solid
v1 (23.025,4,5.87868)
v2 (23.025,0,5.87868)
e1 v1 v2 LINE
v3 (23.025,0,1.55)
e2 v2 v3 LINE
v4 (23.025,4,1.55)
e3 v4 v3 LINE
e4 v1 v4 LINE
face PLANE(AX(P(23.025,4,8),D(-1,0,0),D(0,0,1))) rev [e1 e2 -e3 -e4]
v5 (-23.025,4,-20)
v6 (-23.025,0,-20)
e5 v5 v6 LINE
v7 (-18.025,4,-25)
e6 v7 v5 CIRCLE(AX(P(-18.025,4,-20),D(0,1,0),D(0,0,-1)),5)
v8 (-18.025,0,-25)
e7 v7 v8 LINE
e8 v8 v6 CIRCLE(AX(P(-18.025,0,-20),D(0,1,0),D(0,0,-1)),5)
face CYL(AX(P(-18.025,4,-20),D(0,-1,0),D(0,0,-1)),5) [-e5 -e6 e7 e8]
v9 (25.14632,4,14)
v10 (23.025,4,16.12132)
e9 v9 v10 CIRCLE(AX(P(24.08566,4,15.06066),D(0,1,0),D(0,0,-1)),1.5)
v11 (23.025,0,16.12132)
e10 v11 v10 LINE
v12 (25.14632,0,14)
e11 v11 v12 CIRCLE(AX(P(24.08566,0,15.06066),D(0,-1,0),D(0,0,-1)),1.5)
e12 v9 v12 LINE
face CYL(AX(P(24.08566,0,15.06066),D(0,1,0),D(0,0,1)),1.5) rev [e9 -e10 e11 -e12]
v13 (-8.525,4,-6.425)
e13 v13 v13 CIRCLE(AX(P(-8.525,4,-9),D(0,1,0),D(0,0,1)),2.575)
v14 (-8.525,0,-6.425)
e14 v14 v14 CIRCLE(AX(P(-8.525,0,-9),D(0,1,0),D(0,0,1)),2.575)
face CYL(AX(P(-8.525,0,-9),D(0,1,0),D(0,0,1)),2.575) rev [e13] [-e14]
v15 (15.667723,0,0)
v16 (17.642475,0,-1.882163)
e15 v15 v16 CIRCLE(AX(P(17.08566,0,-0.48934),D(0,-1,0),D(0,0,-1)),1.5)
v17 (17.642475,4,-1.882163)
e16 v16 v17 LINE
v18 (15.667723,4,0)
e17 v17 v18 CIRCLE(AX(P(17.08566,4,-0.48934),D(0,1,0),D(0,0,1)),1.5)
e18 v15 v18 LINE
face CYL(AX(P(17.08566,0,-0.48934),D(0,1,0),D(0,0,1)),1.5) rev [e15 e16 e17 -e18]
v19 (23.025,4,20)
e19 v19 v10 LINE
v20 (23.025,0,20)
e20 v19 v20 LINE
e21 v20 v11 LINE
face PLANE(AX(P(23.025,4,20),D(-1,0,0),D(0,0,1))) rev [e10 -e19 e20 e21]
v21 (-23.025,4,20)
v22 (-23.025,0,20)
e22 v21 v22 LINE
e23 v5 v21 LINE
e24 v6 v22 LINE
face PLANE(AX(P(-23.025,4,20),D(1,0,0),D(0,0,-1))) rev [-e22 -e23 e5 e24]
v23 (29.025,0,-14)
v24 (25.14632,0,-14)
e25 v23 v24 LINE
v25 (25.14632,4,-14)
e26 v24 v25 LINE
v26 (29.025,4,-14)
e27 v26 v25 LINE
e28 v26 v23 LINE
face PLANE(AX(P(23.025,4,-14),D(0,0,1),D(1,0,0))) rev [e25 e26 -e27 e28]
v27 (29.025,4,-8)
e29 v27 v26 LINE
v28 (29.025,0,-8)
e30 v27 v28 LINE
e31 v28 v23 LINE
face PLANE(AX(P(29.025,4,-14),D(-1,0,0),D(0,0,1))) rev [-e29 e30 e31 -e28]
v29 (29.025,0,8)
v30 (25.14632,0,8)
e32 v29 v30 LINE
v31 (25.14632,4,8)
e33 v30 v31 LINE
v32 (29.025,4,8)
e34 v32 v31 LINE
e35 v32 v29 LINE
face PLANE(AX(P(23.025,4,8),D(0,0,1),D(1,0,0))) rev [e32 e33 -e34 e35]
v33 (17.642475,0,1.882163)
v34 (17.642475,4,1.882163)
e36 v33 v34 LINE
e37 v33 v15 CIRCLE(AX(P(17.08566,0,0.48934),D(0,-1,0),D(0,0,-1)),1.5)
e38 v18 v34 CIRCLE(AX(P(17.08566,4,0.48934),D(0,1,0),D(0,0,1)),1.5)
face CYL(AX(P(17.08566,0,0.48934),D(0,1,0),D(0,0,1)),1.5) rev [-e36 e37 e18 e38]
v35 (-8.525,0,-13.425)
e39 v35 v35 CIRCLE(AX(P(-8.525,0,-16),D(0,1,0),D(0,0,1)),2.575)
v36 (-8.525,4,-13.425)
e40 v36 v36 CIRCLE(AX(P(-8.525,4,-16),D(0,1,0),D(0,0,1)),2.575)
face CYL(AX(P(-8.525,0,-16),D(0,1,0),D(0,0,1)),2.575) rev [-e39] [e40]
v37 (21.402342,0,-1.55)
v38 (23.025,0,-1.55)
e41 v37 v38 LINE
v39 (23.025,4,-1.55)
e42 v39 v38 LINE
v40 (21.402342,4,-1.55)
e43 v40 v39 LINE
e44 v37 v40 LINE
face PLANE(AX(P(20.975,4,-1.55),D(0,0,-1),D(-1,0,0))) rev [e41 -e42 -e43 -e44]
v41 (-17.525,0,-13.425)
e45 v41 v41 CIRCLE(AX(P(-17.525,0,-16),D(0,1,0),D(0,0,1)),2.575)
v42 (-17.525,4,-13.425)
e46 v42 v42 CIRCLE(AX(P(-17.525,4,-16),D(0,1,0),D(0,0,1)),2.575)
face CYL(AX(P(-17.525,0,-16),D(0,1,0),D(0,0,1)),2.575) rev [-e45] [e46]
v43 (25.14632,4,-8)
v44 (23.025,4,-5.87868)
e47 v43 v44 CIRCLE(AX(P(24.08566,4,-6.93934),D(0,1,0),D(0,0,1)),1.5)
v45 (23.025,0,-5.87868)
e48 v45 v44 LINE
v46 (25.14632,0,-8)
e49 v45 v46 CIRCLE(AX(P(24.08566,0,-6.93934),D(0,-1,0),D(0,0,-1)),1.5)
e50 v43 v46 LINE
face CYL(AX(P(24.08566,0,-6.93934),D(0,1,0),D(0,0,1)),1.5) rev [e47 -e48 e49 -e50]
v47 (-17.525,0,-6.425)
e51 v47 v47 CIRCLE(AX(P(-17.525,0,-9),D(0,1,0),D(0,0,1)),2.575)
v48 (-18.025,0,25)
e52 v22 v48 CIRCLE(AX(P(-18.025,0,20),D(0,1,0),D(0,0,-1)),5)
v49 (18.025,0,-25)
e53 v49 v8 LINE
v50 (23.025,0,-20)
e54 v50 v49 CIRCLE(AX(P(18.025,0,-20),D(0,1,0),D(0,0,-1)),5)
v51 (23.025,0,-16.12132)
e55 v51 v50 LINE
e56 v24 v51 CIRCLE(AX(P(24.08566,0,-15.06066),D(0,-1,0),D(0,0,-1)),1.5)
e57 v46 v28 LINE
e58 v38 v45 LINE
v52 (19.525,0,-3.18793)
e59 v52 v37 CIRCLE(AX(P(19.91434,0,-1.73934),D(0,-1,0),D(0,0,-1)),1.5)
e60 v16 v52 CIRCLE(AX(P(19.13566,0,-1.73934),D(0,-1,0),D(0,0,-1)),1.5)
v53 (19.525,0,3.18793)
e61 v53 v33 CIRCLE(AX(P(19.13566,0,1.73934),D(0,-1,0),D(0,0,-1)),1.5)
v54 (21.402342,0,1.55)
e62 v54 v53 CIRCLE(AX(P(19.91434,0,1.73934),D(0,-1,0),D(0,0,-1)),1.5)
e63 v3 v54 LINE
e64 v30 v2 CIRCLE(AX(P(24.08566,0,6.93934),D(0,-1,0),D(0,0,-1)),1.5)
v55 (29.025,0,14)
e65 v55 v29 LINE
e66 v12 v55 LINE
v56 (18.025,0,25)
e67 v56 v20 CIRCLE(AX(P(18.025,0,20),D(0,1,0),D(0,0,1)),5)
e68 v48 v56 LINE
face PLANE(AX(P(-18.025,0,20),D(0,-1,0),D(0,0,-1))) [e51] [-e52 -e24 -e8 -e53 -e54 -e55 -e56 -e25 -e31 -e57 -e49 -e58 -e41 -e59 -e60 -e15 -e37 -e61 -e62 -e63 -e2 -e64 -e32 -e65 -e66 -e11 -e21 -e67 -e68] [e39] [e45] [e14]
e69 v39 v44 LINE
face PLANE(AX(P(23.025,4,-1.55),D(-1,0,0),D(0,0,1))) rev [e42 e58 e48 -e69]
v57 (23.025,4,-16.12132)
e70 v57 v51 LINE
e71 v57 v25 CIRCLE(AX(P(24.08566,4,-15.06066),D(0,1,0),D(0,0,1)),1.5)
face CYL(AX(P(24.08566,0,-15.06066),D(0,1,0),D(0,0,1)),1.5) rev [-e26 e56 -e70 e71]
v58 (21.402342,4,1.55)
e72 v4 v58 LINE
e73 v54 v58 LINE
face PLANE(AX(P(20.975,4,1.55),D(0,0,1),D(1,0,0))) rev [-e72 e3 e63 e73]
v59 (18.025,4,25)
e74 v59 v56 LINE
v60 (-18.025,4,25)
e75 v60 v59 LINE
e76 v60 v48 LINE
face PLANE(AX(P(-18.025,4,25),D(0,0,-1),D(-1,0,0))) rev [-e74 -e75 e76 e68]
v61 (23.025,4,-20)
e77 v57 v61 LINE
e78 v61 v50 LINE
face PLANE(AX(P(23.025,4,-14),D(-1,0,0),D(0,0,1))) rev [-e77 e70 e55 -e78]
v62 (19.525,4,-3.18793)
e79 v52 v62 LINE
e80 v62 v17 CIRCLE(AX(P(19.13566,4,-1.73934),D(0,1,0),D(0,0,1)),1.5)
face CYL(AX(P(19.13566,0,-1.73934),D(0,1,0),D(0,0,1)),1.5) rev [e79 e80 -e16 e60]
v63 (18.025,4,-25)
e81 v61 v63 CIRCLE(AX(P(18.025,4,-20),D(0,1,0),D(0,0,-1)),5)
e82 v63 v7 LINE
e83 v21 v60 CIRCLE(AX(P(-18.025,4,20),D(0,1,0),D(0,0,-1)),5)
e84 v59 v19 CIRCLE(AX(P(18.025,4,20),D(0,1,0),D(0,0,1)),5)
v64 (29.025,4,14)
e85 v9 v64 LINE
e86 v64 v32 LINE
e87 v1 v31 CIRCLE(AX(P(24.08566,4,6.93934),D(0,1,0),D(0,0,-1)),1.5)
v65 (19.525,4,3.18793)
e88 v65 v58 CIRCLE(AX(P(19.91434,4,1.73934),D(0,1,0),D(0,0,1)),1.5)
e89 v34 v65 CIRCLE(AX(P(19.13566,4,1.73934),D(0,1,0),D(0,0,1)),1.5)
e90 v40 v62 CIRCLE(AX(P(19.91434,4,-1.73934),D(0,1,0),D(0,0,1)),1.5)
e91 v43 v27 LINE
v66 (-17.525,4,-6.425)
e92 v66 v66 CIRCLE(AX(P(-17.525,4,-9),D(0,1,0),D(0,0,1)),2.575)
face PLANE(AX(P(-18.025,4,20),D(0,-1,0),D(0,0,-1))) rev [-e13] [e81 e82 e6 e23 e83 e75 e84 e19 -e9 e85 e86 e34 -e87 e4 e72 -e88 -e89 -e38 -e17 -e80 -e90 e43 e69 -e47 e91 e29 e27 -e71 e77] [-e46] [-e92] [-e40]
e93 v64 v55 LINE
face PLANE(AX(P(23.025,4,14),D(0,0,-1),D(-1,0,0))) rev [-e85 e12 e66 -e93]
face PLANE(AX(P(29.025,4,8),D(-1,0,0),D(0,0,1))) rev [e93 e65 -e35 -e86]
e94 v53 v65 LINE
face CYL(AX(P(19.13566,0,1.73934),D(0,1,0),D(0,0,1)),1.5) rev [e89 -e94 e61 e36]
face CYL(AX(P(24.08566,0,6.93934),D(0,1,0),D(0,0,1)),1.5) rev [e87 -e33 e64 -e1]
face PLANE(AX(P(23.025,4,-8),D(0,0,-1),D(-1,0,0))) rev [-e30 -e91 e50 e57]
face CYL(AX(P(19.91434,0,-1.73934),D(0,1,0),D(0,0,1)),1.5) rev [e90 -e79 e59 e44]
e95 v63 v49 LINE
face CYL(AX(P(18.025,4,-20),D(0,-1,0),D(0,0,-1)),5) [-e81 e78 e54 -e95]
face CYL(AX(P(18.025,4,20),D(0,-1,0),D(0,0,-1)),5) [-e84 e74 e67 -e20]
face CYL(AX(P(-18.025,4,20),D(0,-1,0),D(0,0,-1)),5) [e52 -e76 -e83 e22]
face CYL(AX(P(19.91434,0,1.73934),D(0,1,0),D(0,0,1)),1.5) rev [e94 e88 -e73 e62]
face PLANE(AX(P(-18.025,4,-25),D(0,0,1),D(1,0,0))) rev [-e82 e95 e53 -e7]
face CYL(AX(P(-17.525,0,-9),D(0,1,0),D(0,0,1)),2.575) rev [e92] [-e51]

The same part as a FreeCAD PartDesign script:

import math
import FreeCAD as App
import Part
import Sketcher
from FreeCAD import Vector

doc = App.newDocument("Part")
body = doc.addObject("PartDesign::Body", "Body")

# Sketch on XZ plane
sketch1 = body.newObject("Sketcher::SketchObject", "Sketch")
sketch1.AttachmentSupport = (doc.getObject("XZ_Plane"), [""])
sketch1.MapMode = "FlatFace"
sketch1.addGeometry(Part.LineSegment(Vector(-18.025, 25, 0), Vector(18.025, 25, 0)), False)
sketch1.addGeometry(Part.ArcOfCircle(Part.Circle(Vector(18.025, 20, 0), Vector(0, 0, 1), 5), math.radians(0), math.radians(90)), False)
sketch1.addGeometry(Part.LineSegment(Vector(23.025, 20, 0), Vector(23.025, 14, 0)), False)
sketch1.addGeometry(Part.LineSegment(Vector(23.025, 14, 0), Vector(29.025, 14, 0)), False)
sketch1.addGeometry(Part.LineSegment(Vector(29.025, 14, 0), Vector(29.025, 8, 0)), False)
sketch1.addGeometry(Part.LineSegment(Vector(29.025, 8, 0), Vector(23.025, 8, 0)), False)
sketch1.addGeometry(Part.LineSegment(Vector(23.025, 8, 0), Vector(23.025, 1.55, 0)), False)
sketch1.addGeometry(Part.LineSegment(Vector(23.025, 1.55, 0), Vector(20.975, 1.55, 0)), False)
sketch1.addGeometry(Part.LineSegment(Vector(20.975, 1.55, 0), Vector(20.975, 2.8, 0)), False)
sketch1.addGeometry(Part.LineSegment(Vector(20.975, 2.8, 0), Vector(18.075, 2.8, 0)), False)
sketch1.addGeometry(Part.LineSegment(Vector(18.075, 2.8, 0), Vector(18.075, 1.55, 0)), False)
sketch1.addGeometry(Part.LineSegment(Vector(18.075, 1.55, 0), Vector(16.025, 1.55, 0)), False)
sketch1.addGeometry(Part.LineSegment(Vector(16.025, 1.55, 0), Vector(16.025, -1.55, 0)), False)
sketch1.addGeometry(Part.LineSegment(Vector(16.025, -1.55, 0), Vector(18.075, -1.55, 0)), False)
sketch1.addGeometry(Part.LineSegment(Vector(18.075, -1.55, 0), Vector(18.075, -2.8, 0)), False)
sketch1.addGeometry(Part.LineSegment(Vector(18.075, -2.8, 0), Vector(20.975, -2.8, 0)), False)
sketch1.addGeometry(Part.LineSegment(Vector(20.975, -2.8, 0), Vector(20.975, -1.55, 0)), False)
sketch1.addGeometry(Part.LineSegment(Vector(20.975, -1.55, 0), Vector(23.025, -1.55, 0)), False)
sketch1.addGeometry(Part.LineSegment(Vector(23.025, -1.55, 0), Vector(23.025, -8, 0)), False)
sketch1.addGeometry(Part.LineSegment(Vector(23.025, -8, 0), Vector(29.025, -8, 0)), False)
sketch1.addGeometry(Part.LineSegment(Vector(29.025, -8, 0), Vector(29.025, -14, 0)), False)
sketch1.addGeometry(Part.LineSegment(Vector(29.025, -14, 0), Vector(23.025, -14, 0)), False)
sketch1.addGeometry(Part.LineSegment(Vector(23.025, -14, 0), Vector(23.025, -20, 0)), False)
sketch1.addGeometry(Part.ArcOfCircle(Part.Circle(Vector(18.025, -20, 0), Vector(0, 0, 1), 5), math.radians(-90), math.radians(0)), False)
sketch1.addGeometry(Part.LineSegment(Vector(18.025, -25, 0), Vector(-18.025, -25, 0)), False)
sketch1.addGeometry(Part.ArcOfCircle(Part.Circle(Vector(-18.025, -20, 0), Vector(0, 0, 1), 5), math.radians(180), math.radians(270)), False)
sketch1.addGeometry(Part.LineSegment(Vector(-23.025, -20, 0), Vector(-23.025, 20, 0)), False)
sketch1.addGeometry(Part.ArcOfCircle(Part.Circle(Vector(-18.025, 20, 0), Vector(0, 0, 1), 5), math.radians(90), math.radians(180)), False)
sketch1.addConstraint(Sketcher.Constraint("Tangent", 0, 2, 1, 2))
sketch1.addConstraint(Sketcher.Constraint("Tangent", 1, 1, 2, 1))
sketch1.addConstraint(Sketcher.Constraint("Coincident", 2, 2, 3, 1))
sketch1.addConstraint(Sketcher.Constraint("Coincident", 3, 2, 4, 1))
sketch1.addConstraint(Sketcher.Constraint("Coincident", 4, 2, 5, 1))
sketch1.addConstraint(Sketcher.Constraint("Coincident", 5, 2, 6, 1))
sketch1.addConstraint(Sketcher.Constraint("Coincident", 6, 2, 7, 1))
sketch1.addConstraint(Sketcher.Constraint("Coincident", 7, 2, 8, 1))
sketch1.addConstraint(Sketcher.Constraint("Coincident", 8, 2, 9, 1))
sketch1.addConstraint(Sketcher.Constraint("Coincident", 9, 2, 10, 1))
sketch1.addConstraint(Sketcher.Constraint("Coincident", 10, 2, 11, 1))
sketch1.addConstraint(Sketcher.Constraint("Coincident", 11, 2, 12, 1))
sketch1.addConstraint(Sketcher.Constraint("Coincident", 12, 2, 13, 1))
sketch1.addConstraint(Sketcher.Constraint("Coincident", 13, 2, 14, 1))
sketch1.addConstraint(Sketcher.Constraint("Coincident", 14, 2, 15, 1))
sketch1.addConstraint(Sketcher.Constraint("Coincident", 15, 2, 16, 1))
sketch1.addConstraint(Sketcher.Constraint("Coincident", 16, 2, 17, 1))
sketch1.addConstraint(Sketcher.Constraint("Coincident", 17, 2, 18, 1))
sketch1.addConstraint(Sketcher.Constraint("Coincident", 18, 2, 19, 1))
sketch1.addConstraint(Sketcher.Constraint("Coincident", 19, 2, 20, 1))
sketch1.addConstraint(Sketcher.Constraint("Coincident", 20, 2, 21, 1))
sketch1.addConstraint(Sketcher.Constraint("Coincident", 21, 2, 22, 1))
sketch1.addConstraint(Sketcher.Constraint("Tangent", 22, 2, 23, 2))
sketch1.addConstraint(Sketcher.Constraint("Tangent", 23, 1, 24, 1))
sketch1.addConstraint(Sketcher.Constraint("Tangent", 24, 2, 25, 2))
sketch1.addConstraint(Sketcher.Constraint("Tangent", 25, 1, 26, 1))
sketch1.addConstraint(Sketcher.Constraint("Tangent", 26, 2, 27, 2))
sketch1.addConstraint(Sketcher.Constraint("Tangent", 27, 1, 0, 1))
sketch1.addConstraint(Sketcher.Constraint("Horizontal", 0))
sketch1.addConstraint(Sketcher.Constraint("Vertical", 2))
sketch1.addConstraint(Sketcher.Constraint("Horizontal", 3))
sketch1.addConstraint(Sketcher.Constraint("Vertical", 4))
sketch1.addConstraint(Sketcher.Constraint("Horizontal", 5))
sketch1.addConstraint(Sketcher.Constraint("Vertical", 6))
sketch1.addConstraint(Sketcher.Constraint("Horizontal", 7))
sketch1.addConstraint(Sketcher.Constraint("Vertical", 8))
sketch1.addConstraint(Sketcher.Constraint("Horizontal", 9))
sketch1.addConstraint(Sketcher.Constraint("Vertical", 10))
sketch1.addConstraint(Sketcher.Constraint("Horizontal", 11))
sketch1.addConstraint(Sketcher.Constraint("Vertical", 12))
sketch1.addConstraint(Sketcher.Constraint("Horizontal", 13))
sketch1.addConstraint(Sketcher.Constraint("Vertical", 14))
sketch1.addConstraint(Sketcher.Constraint("Horizontal", 15))
sketch1.addConstraint(Sketcher.Constraint("Vertical", 16))
sketch1.addConstraint(Sketcher.Constraint("Horizontal", 17))
sketch1.addConstraint(Sketcher.Constraint("Vertical", 18))
sketch1.addConstraint(Sketcher.Constraint("Horizontal", 19))
sketch1.addConstraint(Sketcher.Constraint("Vertical", 20))
sketch1.addConstraint(Sketcher.Constraint("Horizontal", 21))
sketch1.addConstraint(Sketcher.Constraint("Vertical", 22))
sketch1.addConstraint(Sketcher.Constraint("Horizontal", 24))
sketch1.addConstraint(Sketcher.Constraint("Vertical", 26))
sketch1.addConstraint(Sketcher.Constraint("Equal", 1, 23))
sketch1.addConstraint(Sketcher.Constraint("Equal", 23, 25))
sketch1.addConstraint(Sketcher.Constraint("Equal", 25, 27))
sketch1.addConstraint(Sketcher.Constraint("Symmetric", 1, 3, 25, 3, -1, 1))
sketch1.addConstraint(Sketcher.Constraint("Symmetric", 10, 2, 13, 2, -1))
sketch1.addConstraint(Sketcher.Constraint("Symmetric", 8, 2, 15, 2, -1))
sketch1.addConstraint(Sketcher.Constraint("Symmetric", 6, 2, 17, 2, -1))
sketch1.addConstraint(Sketcher.Constraint("Symmetric", 4, 2, 19, 2, -1))
sketch1.addConstraint(Sketcher.Constraint("Symmetric", 2, 2, 21, 2, -1))
sketch1.addConstraint(Sketcher.Constraint("Horizontal", 7, 2, 10, 2))
sketch1.addConstraint(Sketcher.Constraint("Vertical", 2, 2, 5, 2))
sketch1.addConstraint(Sketcher.Constraint("Equal", 7, 11))
sketch1.addConstraint(Sketcher.Constraint("Equal", 21, 2))
sketch1.addConstraint(Sketcher.Constraint("Equal", 2, 4))
sketch1.addConstraint(Sketcher.Constraint("Radius", 1, 5.0))
sketch1.addConstraint(Sketcher.Constraint("DistanceX", 3, 1, 3, 2, 6.0))
sketch1.addConstraint(Sketcher.Constraint("DistanceY", 26, 1, 26, 2, 40.0))
sketch1.addConstraint(Sketcher.Constraint("DistanceX", 9, 2, 9, 1, 2.9))
sketch1.addConstraint(Sketcher.Constraint("DistanceY", 12, 2, 12, 1, 3.1))
sketch1.addConstraint(Sketcher.Constraint("DistanceX", 11, 2, 6, 2, 7.0))
sketch1.addConstraint(Sketcher.Constraint("DistanceX", 0, 1, 0, 2, 36.05))
sketch1.addConstraint(Sketcher.Constraint("DistanceY", 8, 1, 8, 2, 1.25))
pad1 = body.newObject("PartDesign::Pad", "Pad")
pad1.Profile = sketch1
pad1.Length = 4
pad1.Reversed = True

# Sketch on XZ plane
sketch2 = body.newObject("Sketcher::SketchObject", "Sketch001")
sketch2.AttachmentSupport = (doc.getObject("XZ_Plane"), [""])
sketch2.MapMode = "FlatFace"
sketch2.AttachmentOffset = App.Placement(Vector(0, 0, -4), App.Rotation())
sketch2.addGeometry(Part.LineSegment(Vector(23.025, -1.55, 0), Vector(21.402342, -1.55, 0)), False)
sketch2.addGeometry(Part.ArcOfCircle(Part.Circle(Vector(19.91434, -1.73934, 0), Vector(0, 0, 1), 1.5), math.radians(-105.043949), math.radians(7.251593)), False)
sketch2.addGeometry(Part.ArcOfCircle(Part.Circle(Vector(19.13566, -1.73934, 0), Vector(0, 0, 1), 1.5), math.radians(-174.53627), math.radians(-74.956051)), False)
sketch2.addGeometry(Part.ArcOfCircle(Part.Circle(Vector(17.08566, -0.48934, 0), Vector(0, 0, 1), 1.5), math.radians(160.960098), math.radians(291.79026)), False)
sketch2.addGeometry(Part.ArcOfCircle(Part.Circle(Vector(17.08566, 0.48934, 0), Vector(0, 0, 1), 1.5), math.radians(68.20974), math.radians(199.039902)), False)
sketch2.addGeometry(Part.ArcOfCircle(Part.Circle(Vector(19.13566, 1.73934, 0), Vector(0, 0, 1), 1.5), math.radians(74.956051), math.radians(174.53627)), False)
sketch2.addGeometry(Part.ArcOfCircle(Part.Circle(Vector(19.91434, 1.73934, 0), Vector(0, 0, 1), 1.5), math.radians(-7.251593), math.radians(105.043949)), False)
sketch2.addGeometry(Part.LineSegment(Vector(21.402342, 1.55, 0), Vector(23.025, 1.55, 0)), False)
sketch2.addGeometry(Part.LineSegment(Vector(23.025, 1.55, 0), Vector(23.025, -1.55, 0)), False)
sketch2.addConstraint(Sketcher.Constraint("Coincident", 0, 2, 1, 2))
sketch2.addConstraint(Sketcher.Constraint("Coincident", 1, 1, 2, 2))
sketch2.addConstraint(Sketcher.Constraint("Coincident", 2, 1, 3, 2))
sketch2.addConstraint(Sketcher.Constraint("Coincident", 3, 1, 4, 2))
sketch2.addConstraint(Sketcher.Constraint("Coincident", 4, 1, 5, 2))
sketch2.addConstraint(Sketcher.Constraint("Coincident", 5, 1, 6, 2))
sketch2.addConstraint(Sketcher.Constraint("Coincident", 6, 1, 7, 1))
sketch2.addConstraint(Sketcher.Constraint("Coincident", 7, 2, 8, 1))
sketch2.addConstraint(Sketcher.Constraint("Coincident", 8, 2, 0, 1))
sketch2.addConstraint(Sketcher.Constraint("Horizontal", 0))
sketch2.addConstraint(Sketcher.Constraint("Horizontal", 7))
sketch2.addConstraint(Sketcher.Constraint("Vertical", 8))
sketch2.addConstraint(Sketcher.Constraint("Equal", 1, 2))
sketch2.addConstraint(Sketcher.Constraint("Equal", 2, 3))
sketch2.addConstraint(Sketcher.Constraint("Equal", 3, 4))
sketch2.addConstraint(Sketcher.Constraint("Equal", 4, 5))
sketch2.addConstraint(Sketcher.Constraint("Equal", 5, 6))
sketch2.addConstraint(Sketcher.Constraint("Symmetric", 3, 3, 4, 3, -1))
sketch2.addConstraint(Sketcher.Constraint("Symmetric", 2, 3, 5, 3, -1))
sketch2.addConstraint(Sketcher.Constraint("Symmetric", 1, 3, 6, 3, -1))
sketch2.addConstraint(Sketcher.Constraint("Horizontal", 1, 3, 2, 3))
sketch2.addConstraint(Sketcher.Constraint("Vertical", 0, 2, 6, 1))
sketch2.addConstraint(Sketcher.Constraint("Radius", 1, 1.5))
sketch2.addConstraint(Sketcher.Constraint("DistanceY", 8, 2, 8, 1, 3.1))
sketch2.addConstraint(Sketcher.Constraint("DistanceX", 5, 1, 7, 2, 3.5))
sketch2.addConstraint(Sketcher.Constraint("DistanceX", 3, 3, 2, 3, 2.05))
sketch2.addConstraint(Sketcher.Constraint("DistanceY", 2, 3, 3, 3, 1.25))
sketch2.addConstraint(Sketcher.Constraint("DistanceX", -1, 1, 1, 1, 19.525))
sketch2.addConstraint(Sketcher.Constraint("DistanceX", 0, 2, 0, 1, 1.622658))
sketch2.addConstraint(Sketcher.Constraint("DistanceX", -1, 1, 1, 3, 19.91434))
pocket1 = body.newObject("PartDesign::Pocket", "Pocket")
pocket1.Profile = sketch2
pocket1.Type = "ThroughAll"
pocket1.Reversed = True

# Sketch on XZ plane
sketch3 = body.newObject("Sketcher::SketchObject", "Sketch002")
sketch3.AttachmentSupport = (doc.getObject("XZ_Plane"), [""])
sketch3.MapMode = "FlatFace"
sketch3.AttachmentOffset = App.Placement(Vector(0, 0, -4), App.Rotation())
sketch3.addGeometry(Part.Circle(Vector(24.08566, -15.06066, 0), Vector(0, 0, 1), 1.5), False)
sketch3.addGeometry(Part.Circle(Vector(24.08566, -6.93934, 0), Vector(0, 0, 1), 1.5), False)
sketch3.addGeometry(Part.Circle(Vector(24.08566, 15.06066, 0), Vector(0, 0, 1), 1.5), False)
sketch3.addGeometry(Part.Circle(Vector(24.08566, 6.93934, 0), Vector(0, 0, 1), 1.5), False)
sketch3.addConstraint(Sketcher.Constraint("Equal", 0, 1))
sketch3.addConstraint(Sketcher.Constraint("Equal", 1, 2))
sketch3.addConstraint(Sketcher.Constraint("Equal", 2, 3))
sketch3.addConstraint(Sketcher.Constraint("Symmetric", 0, 3, 2, 3, -1))
sketch3.addConstraint(Sketcher.Constraint("Symmetric", 1, 3, 3, 3, -1))
sketch3.addConstraint(Sketcher.Constraint("Vertical", 0, 3, 1, 3))
sketch3.addConstraint(Sketcher.Constraint("Diameter", 0, 3.0))
sketch3.addConstraint(Sketcher.Constraint("DistanceY", 1, 3, 2, 3, 22.0))
sketch3.addConstraint(Sketcher.Constraint("DistanceX", -1, 1, 0, 3, 24.08566))
sketch3.addConstraint(Sketcher.Constraint("DistanceY", 0, 3, -1, 1, 15.06066))
pocket2 = body.newObject("PartDesign::Pocket", "Pocket001")
pocket2.Profile = sketch3
pocket2.Type = "ThroughAll"
pocket2.Reversed = True

# Sketch on XZ plane
sketch4 = body.newObject("Sketcher::SketchObject", "Sketch003")
sketch4.AttachmentSupport = (doc.getObject("XZ_Plane"), [""])
sketch4.MapMode = "FlatFace"
sketch4.AttachmentOffset = App.Placement(Vector(0, 0, -4), App.Rotation())
sketch4.addGeometry(Part.Circle(Vector(-17.525, -16, 0), Vector(0, 0, 1), 2.575), False)
sketch4.addGeometry(Part.Circle(Vector(-8.525, -16, 0), Vector(0, 0, 1), 2.575), False)
sketch4.addGeometry(Part.Circle(Vector(-8.525, -9, 0), Vector(0, 0, 1), 2.575), False)
sketch4.addGeometry(Part.Circle(Vector(-17.525, -9, 0), Vector(0, 0, 1), 2.575), False)
sketch4.addConstraint(Sketcher.Constraint("Equal", 0, 1))
sketch4.addConstraint(Sketcher.Constraint("Equal", 1, 2))
sketch4.addConstraint(Sketcher.Constraint("Equal", 2, 3))
sketch4.addConstraint(Sketcher.Constraint("Horizontal", 0, 3, 1, 3))
sketch4.addConstraint(Sketcher.Constraint("Horizontal", 2, 3, 3, 3))
sketch4.addConstraint(Sketcher.Constraint("Vertical", 1, 3, 2, 3))
sketch4.addConstraint(Sketcher.Constraint("Vertical", 0, 3, 3, 3))
sketch4.addConstraint(Sketcher.Constraint("Diameter", 0, 5.15))
sketch4.addConstraint(Sketcher.Constraint("DistanceY", 0, 3, -1, 1, 16.0))
sketch4.addConstraint(Sketcher.Constraint("DistanceY", 2, 3, -1, 1, 9.0))
sketch4.addConstraint(Sketcher.Constraint("DistanceX", 0, 3, 1, 3, 9.0))
sketch4.addConstraint(Sketcher.Constraint("DistanceX", 0, 3, -1, 1, 17.525))
pocket3 = body.newObject("PartDesign::Pocket", "Pocket002")
pocket3.Profile = sketch4
pocket3.Type = "ThroughAll"
pocket3.Reversed = True

doc.recompute()
